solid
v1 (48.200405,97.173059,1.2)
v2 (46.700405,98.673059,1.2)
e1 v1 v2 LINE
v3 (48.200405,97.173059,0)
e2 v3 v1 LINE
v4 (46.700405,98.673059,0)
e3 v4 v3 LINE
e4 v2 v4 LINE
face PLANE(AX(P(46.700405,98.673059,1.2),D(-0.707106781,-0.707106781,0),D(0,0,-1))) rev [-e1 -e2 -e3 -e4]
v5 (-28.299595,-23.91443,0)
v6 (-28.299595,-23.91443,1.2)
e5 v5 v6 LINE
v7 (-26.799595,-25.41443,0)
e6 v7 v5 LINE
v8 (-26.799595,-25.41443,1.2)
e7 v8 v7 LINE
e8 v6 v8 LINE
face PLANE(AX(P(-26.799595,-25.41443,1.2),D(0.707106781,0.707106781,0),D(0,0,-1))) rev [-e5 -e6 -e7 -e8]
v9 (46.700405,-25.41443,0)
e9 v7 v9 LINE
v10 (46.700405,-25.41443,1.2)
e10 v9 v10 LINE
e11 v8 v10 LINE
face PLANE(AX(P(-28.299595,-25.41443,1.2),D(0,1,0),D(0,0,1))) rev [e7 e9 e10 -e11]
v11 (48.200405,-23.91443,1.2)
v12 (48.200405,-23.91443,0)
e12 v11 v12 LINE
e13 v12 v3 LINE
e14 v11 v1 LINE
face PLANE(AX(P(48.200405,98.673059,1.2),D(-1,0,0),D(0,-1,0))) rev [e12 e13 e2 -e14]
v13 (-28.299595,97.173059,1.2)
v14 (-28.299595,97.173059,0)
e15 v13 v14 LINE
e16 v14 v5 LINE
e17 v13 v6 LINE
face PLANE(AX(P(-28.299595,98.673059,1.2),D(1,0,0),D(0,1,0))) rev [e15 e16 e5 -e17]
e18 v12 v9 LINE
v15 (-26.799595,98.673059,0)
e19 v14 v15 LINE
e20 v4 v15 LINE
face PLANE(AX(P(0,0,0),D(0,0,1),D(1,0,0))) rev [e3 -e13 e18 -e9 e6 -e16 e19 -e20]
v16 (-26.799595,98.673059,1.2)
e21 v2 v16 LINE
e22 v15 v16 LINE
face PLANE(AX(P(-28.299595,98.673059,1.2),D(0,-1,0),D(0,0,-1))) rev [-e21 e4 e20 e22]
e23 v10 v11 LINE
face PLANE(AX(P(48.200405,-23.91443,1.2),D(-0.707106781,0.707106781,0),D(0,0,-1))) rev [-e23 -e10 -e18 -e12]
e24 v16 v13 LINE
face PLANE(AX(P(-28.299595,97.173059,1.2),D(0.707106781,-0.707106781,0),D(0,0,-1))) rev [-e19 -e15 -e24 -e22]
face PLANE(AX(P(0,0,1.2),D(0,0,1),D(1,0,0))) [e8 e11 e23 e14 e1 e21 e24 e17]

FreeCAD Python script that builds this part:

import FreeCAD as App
import Part
import Sketcher
from FreeCAD import Vector


def edges_at(feature, points):
    """Names of the edges that pass closest to the given points."""
    edges = feature.Shape.Edges
    near = lambda p: min(range(len(edges)), key=lambda i: edges[i].distToShape(Part.Vertex(*p))[0])
    return sorted({f"Edge{near(p) + 1}" for p in points})

doc = App.newDocument("Part")
body = doc.addObject("PartDesign::Body", "Body")

sketch1 = doc.addObject("Sketcher::SketchObject", "Sketch")
body.addObject(sketch1)
sketch1.AttachmentSupport = (doc.XY_Plane, [""])
sketch1.MapMode = "FlatFace"
sketch1.addGeometry([
    Part.LineSegment(Vector(-28, 99, 0), Vector(-28, -25, 0)),
    Part.LineSegment(Vector(-28, -25, 0), Vector(48, -25, 0)),
    Part.LineSegment(Vector(48, -25, 0), Vector(48, 99, 0)),
    Part.LineSegment(Vector(48, 99, 0), Vector(-28, 99, 0)),
], False)
sketch1.addConstraint([
    Sketcher.Constraint("Coincident", 0, 2, 1, 1),
    Sketcher.Constraint("Coincident", 1, 2, 2, 1),
    Sketcher.Constraint("Coincident", 2, 2, 3, 1),
    Sketcher.Constraint("Coincident", 3, 2, 0, 1),
    Sketcher.Constraint("Vertical", 0),
    Sketcher.Constraint("Horizontal", 1),
    Sketcher.Constraint("Vertical", 2),
    Sketcher.Constraint("Horizontal", 3),
    Sketcher.Constraint("DistanceX", 1, 1, 1, 2, 76.5),
    Sketcher.Constraint("DistanceY", 0, 2, 0, 1, 124.087489),
    Sketcher.Constraint("DistanceY", 0, 2, -1, 1, 25.41443),
    Sketcher.Constraint("DistanceX", 0, 2, -1, 1, 28.299595),
])
pad1 = doc.addObject("PartDesign::Pad", "Pad")
body.addObject(pad1)
pad1.Profile = sketch1
pad1.Length = 1.2
doc.recompute()

chamfer = doc.addObject("PartDesign::Chamfer", "Chamfer")
body.addObject(chamfer)
chamfer.Base = (pad1, edges_at(pad1, [
    (48.2, -25.414, 0.6),
    (-28.3, -25.414, 0.6),
    (-28.3, 98.673, 0.6),
    (48.2, 98.673, 0.6),
]))
chamfer.Size = 1.5

doc.recompute()
